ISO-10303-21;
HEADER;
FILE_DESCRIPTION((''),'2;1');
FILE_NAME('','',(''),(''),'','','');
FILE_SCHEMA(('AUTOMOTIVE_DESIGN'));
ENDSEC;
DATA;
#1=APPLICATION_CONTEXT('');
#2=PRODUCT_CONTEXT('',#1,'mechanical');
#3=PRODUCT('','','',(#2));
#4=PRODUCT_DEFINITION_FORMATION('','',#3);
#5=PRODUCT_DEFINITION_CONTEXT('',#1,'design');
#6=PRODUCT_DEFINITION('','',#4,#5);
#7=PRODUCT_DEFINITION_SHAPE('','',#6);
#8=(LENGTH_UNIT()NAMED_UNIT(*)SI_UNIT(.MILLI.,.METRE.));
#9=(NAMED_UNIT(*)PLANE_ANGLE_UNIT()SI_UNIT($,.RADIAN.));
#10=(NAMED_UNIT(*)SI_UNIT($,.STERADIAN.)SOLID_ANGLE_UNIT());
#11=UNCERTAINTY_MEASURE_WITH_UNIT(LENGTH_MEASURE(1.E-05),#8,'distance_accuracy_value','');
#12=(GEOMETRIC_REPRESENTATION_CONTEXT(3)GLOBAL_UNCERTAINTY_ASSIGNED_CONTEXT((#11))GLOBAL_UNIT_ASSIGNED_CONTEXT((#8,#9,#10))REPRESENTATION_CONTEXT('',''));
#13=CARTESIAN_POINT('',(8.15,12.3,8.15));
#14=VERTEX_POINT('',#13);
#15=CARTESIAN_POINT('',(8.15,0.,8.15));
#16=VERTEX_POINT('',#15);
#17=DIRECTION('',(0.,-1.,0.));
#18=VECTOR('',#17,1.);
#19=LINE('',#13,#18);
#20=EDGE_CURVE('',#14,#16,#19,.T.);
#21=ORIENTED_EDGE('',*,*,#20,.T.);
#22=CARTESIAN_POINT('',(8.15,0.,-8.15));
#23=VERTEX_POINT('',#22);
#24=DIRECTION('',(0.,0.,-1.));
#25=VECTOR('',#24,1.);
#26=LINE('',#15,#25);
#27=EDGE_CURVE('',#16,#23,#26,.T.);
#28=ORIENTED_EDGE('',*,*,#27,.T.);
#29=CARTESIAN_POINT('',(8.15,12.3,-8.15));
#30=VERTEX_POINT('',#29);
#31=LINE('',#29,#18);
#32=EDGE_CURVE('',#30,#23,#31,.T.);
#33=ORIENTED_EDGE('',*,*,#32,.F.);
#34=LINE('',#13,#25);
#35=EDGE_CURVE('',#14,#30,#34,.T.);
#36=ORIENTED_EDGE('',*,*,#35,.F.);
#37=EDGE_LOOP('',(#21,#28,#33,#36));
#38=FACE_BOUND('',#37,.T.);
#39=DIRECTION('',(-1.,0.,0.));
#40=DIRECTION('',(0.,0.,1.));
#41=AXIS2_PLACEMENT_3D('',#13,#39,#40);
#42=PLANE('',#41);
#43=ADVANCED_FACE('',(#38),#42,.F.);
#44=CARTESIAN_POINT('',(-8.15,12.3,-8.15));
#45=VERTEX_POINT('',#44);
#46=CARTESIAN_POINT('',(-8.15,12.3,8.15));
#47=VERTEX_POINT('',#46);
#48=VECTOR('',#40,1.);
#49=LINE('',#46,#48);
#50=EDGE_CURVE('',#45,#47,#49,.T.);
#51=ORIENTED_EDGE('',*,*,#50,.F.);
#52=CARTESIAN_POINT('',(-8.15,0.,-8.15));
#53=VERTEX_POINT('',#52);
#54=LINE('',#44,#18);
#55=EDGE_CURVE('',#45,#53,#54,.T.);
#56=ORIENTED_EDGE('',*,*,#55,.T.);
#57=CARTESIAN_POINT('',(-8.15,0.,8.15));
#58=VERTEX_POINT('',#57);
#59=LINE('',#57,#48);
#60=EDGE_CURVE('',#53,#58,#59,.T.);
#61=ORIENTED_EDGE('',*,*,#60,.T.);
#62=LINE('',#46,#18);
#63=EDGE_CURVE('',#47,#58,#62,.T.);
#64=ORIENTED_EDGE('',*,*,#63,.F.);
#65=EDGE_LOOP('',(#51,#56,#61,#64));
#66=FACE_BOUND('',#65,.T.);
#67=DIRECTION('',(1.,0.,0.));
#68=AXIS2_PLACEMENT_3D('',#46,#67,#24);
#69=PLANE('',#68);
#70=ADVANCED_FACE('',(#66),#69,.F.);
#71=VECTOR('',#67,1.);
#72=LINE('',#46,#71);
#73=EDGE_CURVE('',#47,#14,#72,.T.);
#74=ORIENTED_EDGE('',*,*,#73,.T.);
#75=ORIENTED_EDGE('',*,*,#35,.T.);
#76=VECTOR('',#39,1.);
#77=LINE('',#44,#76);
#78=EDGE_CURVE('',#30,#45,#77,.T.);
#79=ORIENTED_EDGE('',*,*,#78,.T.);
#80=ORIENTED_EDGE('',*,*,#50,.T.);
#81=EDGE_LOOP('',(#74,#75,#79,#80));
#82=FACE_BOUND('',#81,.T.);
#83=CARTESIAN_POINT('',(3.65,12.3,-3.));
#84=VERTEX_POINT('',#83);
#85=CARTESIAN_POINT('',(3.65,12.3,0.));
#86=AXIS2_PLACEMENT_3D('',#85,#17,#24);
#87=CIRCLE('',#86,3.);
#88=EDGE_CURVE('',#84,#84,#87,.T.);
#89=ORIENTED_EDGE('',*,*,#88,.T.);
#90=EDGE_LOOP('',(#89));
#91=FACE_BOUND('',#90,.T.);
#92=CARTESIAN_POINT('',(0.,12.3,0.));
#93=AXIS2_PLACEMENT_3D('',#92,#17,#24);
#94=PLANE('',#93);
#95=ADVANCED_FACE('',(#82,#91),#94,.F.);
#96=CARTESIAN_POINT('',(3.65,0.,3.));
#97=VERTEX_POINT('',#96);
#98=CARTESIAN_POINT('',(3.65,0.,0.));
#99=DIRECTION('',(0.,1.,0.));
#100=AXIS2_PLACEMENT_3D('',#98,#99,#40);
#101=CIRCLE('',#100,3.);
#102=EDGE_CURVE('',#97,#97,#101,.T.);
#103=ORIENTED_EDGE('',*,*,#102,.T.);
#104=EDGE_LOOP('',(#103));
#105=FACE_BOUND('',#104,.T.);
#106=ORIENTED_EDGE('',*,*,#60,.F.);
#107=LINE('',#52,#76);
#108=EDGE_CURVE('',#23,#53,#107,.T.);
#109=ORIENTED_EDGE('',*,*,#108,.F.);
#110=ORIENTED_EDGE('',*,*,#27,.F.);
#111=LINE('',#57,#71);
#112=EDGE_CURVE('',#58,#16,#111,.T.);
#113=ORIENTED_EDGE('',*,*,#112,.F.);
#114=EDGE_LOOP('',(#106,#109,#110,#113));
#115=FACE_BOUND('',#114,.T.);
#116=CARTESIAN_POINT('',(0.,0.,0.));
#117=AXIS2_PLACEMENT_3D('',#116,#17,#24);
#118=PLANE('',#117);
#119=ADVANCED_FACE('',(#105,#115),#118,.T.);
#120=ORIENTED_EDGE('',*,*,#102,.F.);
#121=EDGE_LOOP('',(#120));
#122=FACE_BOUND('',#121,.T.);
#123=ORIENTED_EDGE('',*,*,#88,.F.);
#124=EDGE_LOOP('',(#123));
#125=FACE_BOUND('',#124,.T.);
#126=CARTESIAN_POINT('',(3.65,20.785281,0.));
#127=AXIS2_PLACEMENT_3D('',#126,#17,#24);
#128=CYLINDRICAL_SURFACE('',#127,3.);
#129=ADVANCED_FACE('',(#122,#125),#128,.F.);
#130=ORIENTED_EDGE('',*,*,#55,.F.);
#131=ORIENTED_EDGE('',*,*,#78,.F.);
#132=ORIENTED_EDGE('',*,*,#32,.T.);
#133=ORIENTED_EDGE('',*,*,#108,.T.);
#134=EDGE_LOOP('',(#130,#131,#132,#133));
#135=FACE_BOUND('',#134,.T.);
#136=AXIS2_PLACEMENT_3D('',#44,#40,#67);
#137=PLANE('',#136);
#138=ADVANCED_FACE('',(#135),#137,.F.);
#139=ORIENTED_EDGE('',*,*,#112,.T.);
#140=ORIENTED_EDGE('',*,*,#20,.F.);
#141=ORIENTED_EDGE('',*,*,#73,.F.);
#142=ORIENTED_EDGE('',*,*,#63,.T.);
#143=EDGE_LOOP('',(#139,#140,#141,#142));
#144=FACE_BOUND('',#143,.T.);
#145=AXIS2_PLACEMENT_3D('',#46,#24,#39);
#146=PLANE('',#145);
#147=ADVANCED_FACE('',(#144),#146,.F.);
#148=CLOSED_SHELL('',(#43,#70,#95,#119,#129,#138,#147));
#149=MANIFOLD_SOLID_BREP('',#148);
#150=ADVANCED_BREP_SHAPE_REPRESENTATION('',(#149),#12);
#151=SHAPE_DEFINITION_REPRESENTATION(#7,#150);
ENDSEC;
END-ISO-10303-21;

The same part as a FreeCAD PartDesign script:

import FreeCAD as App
import Part
import Sketcher

doc = App.newDocument("Part")
body = doc.addObject("PartDesign::Body", "Body")

# Sketch on XZ plane
sketch1 = body.newObject("Sketcher::SketchObject", "Sketch")
sketch1.AttachmentSupport = (doc.getObject("XZ_Plane"), [""])
sketch1.MapMode = "FlatFace"
sketch1.addGeometry([
    Part.LineSegment(App.Vector(-8, -8, 0), App.Vector(-8, 8, 0)),
    Part.LineSegment(App.Vector(-8, 8, 0), App.Vector(8, 8, 0)),
    Part.LineSegment(App.Vector(8, 8, 0), App.Vector(8, -8, 0)),
    Part.LineSegment(App.Vector(8, -8, 0), App.Vector(-8, -8, 0)),
], False)
sketch1.addConstraint([
    Sketcher.Constraint("Coincident", 0, 2, 1, 1),
    Sketcher.Constraint("Coincident", 1, 2, 2, 1),
    Sketcher.Constraint("Coincident", 2, 2, 3, 1),
    Sketcher.Constraint("Coincident", 3, 2, 0, 1),
    Sketcher.Constraint("Vertical", 0),
    Sketcher.Constraint("Horizontal", 1),
    Sketcher.Constraint("Vertical", 2),
    Sketcher.Constraint("Horizontal", 3),
    Sketcher.Constraint("Symmetric", 0, 2, 2, 2, -1, 1),
    Sketcher.Constraint("Equal", 3, 0),
    Sketcher.Constraint("DistanceX", 1, 1, 1, 2, 16.3),
])
pad1 = body.newObject("PartDesign::Pad", "Pad")
pad1.Profile = sketch1
pad1.Length = 12.3
pad1.Reversed = True

# Sketch on XZ plane
sketch2 = body.newObject("Sketcher::SketchObject", "Sketch001")
sketch2.AttachmentSupport = (doc.getObject("XZ_Plane"), [""])
sketch2.MapMode = "FlatFace"
sketch2.addGeometry(Part.Circle(App.Vector(3.6, 0, 0), App.Vector(0, 0, 1), 3), False)
sketch2.addConstraint([
    Sketcher.Constraint("PointOnObject", 0, 3, -1),
    Sketcher.Constraint("Diameter", 0, 6.0),
    Sketcher.Constraint("DistanceX", -1, 1, 0, 3, 3.65),
])
pocket1 = body.newObject("PartDesign::Pocket", "Pocket")
pocket1.Profile = sketch2
pocket1.Length = 12.3

doc.recompute()
